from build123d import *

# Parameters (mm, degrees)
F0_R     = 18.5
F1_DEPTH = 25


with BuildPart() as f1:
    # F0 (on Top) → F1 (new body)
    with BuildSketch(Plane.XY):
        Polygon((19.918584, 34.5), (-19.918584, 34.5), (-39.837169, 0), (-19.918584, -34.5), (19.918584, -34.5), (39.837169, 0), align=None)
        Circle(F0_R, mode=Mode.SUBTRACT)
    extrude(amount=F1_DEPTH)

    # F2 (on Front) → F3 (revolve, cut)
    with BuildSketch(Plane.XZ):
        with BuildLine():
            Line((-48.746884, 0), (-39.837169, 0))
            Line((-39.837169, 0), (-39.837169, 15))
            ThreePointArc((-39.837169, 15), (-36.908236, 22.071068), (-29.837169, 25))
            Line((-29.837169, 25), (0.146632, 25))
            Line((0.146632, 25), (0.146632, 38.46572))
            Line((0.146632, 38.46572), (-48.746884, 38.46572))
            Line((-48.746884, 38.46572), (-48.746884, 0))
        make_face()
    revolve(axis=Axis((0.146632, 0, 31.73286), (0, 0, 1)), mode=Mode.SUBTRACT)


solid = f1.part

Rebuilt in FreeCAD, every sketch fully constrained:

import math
import FreeCAD as App
import Part
import Sketcher
from FreeCAD import Vector
Q = App.Units.Quantity

doc = App.newDocument("Part")
body = doc.addObject("PartDesign::Body", "Body")

# Sketch on XY plane
sketch1 = body.newObject("Sketcher::SketchObject", "Sketch")
sketch1.AttachmentSupport = (doc.getObject("XY_Plane"), [""])
sketch1.MapMode = "FlatFace"
sketch1.addGeometry(Part.LineSegment(Vector(20, 34, 0), Vector(-20, 34, 0)), False)
sketch1.addGeometry(Part.LineSegment(Vector(-20, 34, 0), Vector(-40, 0, 0)), False)
sketch1.addGeometry(Part.LineSegment(Vector(-40, 0, 0), Vector(-20, -34, 0)), False)
sketch1.addGeometry(Part.LineSegment(Vector(-20, -34, 0), Vector(20, -34, 0)), False)
sketch1.addGeometry(Part.LineSegment(Vector(20, -34, 0), Vector(40, 0, 0)), False)
sketch1.addGeometry(Part.LineSegment(Vector(40, 0, 0), Vector(20, 34, 0)), False)
sketch1.addGeometry(Part.Circle(Vector(0, 0, 0), Vector(0, 0, 1), 18), False)
sketch1.addConstraint(Sketcher.Constraint("Coincident", 0, 2, 1, 1))
sketch1.addConstraint(Sketcher.Constraint("Coincident", 1, 2, 2, 1))
sketch1.addConstraint(Sketcher.Constraint("Coincident", 2, 2, 3, 1))
sketch1.addConstraint(Sketcher.Constraint("Coincident", 3, 2, 4, 1))
sketch1.addConstraint(Sketcher.Constraint("Coincident", 4, 2, 5, 1))
sketch1.addConstraint(Sketcher.Constraint("Coincident", 5, 2, 0, 1))
sketch1.addConstraint(Sketcher.Constraint("Horizontal", 0))
sketch1.addConstraint(Sketcher.Constraint("Horizontal", 3))
sketch1.addConstraint(Sketcher.Constraint("Coincident", 6, 3, -1, 1))
sketch1.addConstraint(Sketcher.Constraint("Symmetric", 0, 2, 3, 2, -1, 1))
sketch1.addConstraint(Sketcher.Constraint("Symmetric", 1, 2, 4, 2, -1, 1))
sketch1.addConstraint(Sketcher.Constraint("PointOnObject", 1, 2, -1))
sketch1.addConstraint(Sketcher.Constraint("Parallel", 2, 5))
sketch1.addConstraint(Sketcher.Constraint("Vertical", 0, 2, 2, 2))
sketch1.addConstraint(Sketcher.Constraint("Diameter", 6, Q("37 mm")))
sketch1.addConstraint(Sketcher.Constraint("Angle", 1, Q("-120.000001 deg")))
sketch1.addConstraint(Sketcher.Constraint("DistanceY", 2, 2, 0, 2, Q("69 mm")))
sketch1.addConstraint(Sketcher.Constraint("DistanceX", 0, 2, 0, 1, Q("39.837168 mm")))
pad1 = body.newObject("PartDesign::Pad", "Pad")
pad1.Profile = sketch1
pad1.Length = 25

# Sketch on XZ plane
sketch2 = body.newObject("Sketcher::SketchObject", "Sketch001")
sketch2.AttachmentSupport = (doc.getObject("XZ_Plane"), [""])
sketch2.MapMode = "FlatFace"
sketch2.addGeometry(Part.LineSegment(Vector(-49, 0, 0), Vector(-40, 0, 0)), False)
sketch2.addGeometry(Part.LineSegment(Vector(-40, 0, 0), Vector(-40, 15, 0)), False)
sketch2.addGeometry(Part.ArcOfCircle(Part.Circle(Vector(-30, 15, 0), Vector(0, 0, 1), 10), math.radians(90), math.radians(180)), False)
sketch2.addGeometry(Part.LineSegment(Vector(-30, 25, 0), Vector(0, 25, 0)), False)
sketch2.addGeometry(Part.LineSegment(Vector(0, 25, 0), Vector(0, 38, 0)), False)
sketch2.addGeometry(Part.LineSegment(Vector(0, 38, 0), Vector(-49, 38, 0)), False)
sketch2.addGeometry(Part.LineSegment(Vector(-49, 38, 0), Vector(-49, 0, 0)), False)
sketch2.addGeometry(Part.LineSegment(Vector(0, 0, 0), Vector(0, 38, 0)), True)  # axis
sketch2.addConstraint(Sketcher.Constraint("Coincident", 0, 2, 1, 1))
sketch2.addConstraint(Sketcher.Constraint("Tangent", 1, 2, 2, 2))
sketch2.addConstraint(Sketcher.Constraint("Tangent", 2, 1, 3, 1))
sketch2.addConstraint(Sketcher.Constraint("Coincident", 3, 2, 4, 1))
sketch2.addConstraint(Sketcher.Constraint("Coincident", 4, 2, 5, 1))
sketch2.addConstraint(Sketcher.Constraint("Coincident", 5, 2, 6, 1))
sketch2.addConstraint(Sketcher.Constraint("Coincident", 6, 2, 0, 1))
sketch2.addConstraint(Sketcher.Constraint("Horizontal", 0))
sketch2.addConstraint(Sketcher.Constraint("Vertical", 1))
sketch2.addConstraint(Sketcher.Constraint("Horizontal", 3))
sketch2.addConstraint(Sketcher.Constraint("Vertical", 4))
sketch2.addConstraint(Sketcher.Constraint("Horizontal", 5))
sketch2.addConstraint(Sketcher.Constraint("Vertical", 6))
sketch2.addConstraint(Sketcher.Constraint("Vertical", 7))
sketch2.addConstraint(Sketcher.Constraint("Coincident", 7, 2, 4, 2))
sketch2.addConstraint(Sketcher.Constraint("PointOnObject", 0, 2, -1))
sketch2.addConstraint(Sketcher.Constraint("PointOnObject", 7, 1, -1))
sketch2.addConstraint(Sketcher.Constraint("Radius", 2, Q("10.000001 mm")))
sketch2.addConstraint(Sketcher.Constraint("DistanceY", 1, 1, 1, 2, Q("15 mm")))
sketch2.addConstraint(Sketcher.Constraint("DistanceX", 3, 1, 3, 2, Q("29.983801 mm")))
sketch2.addConstraint(Sketcher.Constraint("DistanceY", 4, 1, 4, 2, Q("13.46572 mm")))
sketch2.addConstraint(Sketcher.Constraint("DistanceX", 0, 1, 0, 2, Q("8.909715 mm")))
sketch2.addConstraint(Sketcher.Constraint("DistanceX", 0, 2, -1, 1, Q("39.837169 mm")))
groove = body.newObject("PartDesign::Groove", "Groove")
groove.Profile = sketch2
groove.ReferenceAxis = (sketch2, ["Axis0"])
groove.Angle = 360

doc.recompute()
